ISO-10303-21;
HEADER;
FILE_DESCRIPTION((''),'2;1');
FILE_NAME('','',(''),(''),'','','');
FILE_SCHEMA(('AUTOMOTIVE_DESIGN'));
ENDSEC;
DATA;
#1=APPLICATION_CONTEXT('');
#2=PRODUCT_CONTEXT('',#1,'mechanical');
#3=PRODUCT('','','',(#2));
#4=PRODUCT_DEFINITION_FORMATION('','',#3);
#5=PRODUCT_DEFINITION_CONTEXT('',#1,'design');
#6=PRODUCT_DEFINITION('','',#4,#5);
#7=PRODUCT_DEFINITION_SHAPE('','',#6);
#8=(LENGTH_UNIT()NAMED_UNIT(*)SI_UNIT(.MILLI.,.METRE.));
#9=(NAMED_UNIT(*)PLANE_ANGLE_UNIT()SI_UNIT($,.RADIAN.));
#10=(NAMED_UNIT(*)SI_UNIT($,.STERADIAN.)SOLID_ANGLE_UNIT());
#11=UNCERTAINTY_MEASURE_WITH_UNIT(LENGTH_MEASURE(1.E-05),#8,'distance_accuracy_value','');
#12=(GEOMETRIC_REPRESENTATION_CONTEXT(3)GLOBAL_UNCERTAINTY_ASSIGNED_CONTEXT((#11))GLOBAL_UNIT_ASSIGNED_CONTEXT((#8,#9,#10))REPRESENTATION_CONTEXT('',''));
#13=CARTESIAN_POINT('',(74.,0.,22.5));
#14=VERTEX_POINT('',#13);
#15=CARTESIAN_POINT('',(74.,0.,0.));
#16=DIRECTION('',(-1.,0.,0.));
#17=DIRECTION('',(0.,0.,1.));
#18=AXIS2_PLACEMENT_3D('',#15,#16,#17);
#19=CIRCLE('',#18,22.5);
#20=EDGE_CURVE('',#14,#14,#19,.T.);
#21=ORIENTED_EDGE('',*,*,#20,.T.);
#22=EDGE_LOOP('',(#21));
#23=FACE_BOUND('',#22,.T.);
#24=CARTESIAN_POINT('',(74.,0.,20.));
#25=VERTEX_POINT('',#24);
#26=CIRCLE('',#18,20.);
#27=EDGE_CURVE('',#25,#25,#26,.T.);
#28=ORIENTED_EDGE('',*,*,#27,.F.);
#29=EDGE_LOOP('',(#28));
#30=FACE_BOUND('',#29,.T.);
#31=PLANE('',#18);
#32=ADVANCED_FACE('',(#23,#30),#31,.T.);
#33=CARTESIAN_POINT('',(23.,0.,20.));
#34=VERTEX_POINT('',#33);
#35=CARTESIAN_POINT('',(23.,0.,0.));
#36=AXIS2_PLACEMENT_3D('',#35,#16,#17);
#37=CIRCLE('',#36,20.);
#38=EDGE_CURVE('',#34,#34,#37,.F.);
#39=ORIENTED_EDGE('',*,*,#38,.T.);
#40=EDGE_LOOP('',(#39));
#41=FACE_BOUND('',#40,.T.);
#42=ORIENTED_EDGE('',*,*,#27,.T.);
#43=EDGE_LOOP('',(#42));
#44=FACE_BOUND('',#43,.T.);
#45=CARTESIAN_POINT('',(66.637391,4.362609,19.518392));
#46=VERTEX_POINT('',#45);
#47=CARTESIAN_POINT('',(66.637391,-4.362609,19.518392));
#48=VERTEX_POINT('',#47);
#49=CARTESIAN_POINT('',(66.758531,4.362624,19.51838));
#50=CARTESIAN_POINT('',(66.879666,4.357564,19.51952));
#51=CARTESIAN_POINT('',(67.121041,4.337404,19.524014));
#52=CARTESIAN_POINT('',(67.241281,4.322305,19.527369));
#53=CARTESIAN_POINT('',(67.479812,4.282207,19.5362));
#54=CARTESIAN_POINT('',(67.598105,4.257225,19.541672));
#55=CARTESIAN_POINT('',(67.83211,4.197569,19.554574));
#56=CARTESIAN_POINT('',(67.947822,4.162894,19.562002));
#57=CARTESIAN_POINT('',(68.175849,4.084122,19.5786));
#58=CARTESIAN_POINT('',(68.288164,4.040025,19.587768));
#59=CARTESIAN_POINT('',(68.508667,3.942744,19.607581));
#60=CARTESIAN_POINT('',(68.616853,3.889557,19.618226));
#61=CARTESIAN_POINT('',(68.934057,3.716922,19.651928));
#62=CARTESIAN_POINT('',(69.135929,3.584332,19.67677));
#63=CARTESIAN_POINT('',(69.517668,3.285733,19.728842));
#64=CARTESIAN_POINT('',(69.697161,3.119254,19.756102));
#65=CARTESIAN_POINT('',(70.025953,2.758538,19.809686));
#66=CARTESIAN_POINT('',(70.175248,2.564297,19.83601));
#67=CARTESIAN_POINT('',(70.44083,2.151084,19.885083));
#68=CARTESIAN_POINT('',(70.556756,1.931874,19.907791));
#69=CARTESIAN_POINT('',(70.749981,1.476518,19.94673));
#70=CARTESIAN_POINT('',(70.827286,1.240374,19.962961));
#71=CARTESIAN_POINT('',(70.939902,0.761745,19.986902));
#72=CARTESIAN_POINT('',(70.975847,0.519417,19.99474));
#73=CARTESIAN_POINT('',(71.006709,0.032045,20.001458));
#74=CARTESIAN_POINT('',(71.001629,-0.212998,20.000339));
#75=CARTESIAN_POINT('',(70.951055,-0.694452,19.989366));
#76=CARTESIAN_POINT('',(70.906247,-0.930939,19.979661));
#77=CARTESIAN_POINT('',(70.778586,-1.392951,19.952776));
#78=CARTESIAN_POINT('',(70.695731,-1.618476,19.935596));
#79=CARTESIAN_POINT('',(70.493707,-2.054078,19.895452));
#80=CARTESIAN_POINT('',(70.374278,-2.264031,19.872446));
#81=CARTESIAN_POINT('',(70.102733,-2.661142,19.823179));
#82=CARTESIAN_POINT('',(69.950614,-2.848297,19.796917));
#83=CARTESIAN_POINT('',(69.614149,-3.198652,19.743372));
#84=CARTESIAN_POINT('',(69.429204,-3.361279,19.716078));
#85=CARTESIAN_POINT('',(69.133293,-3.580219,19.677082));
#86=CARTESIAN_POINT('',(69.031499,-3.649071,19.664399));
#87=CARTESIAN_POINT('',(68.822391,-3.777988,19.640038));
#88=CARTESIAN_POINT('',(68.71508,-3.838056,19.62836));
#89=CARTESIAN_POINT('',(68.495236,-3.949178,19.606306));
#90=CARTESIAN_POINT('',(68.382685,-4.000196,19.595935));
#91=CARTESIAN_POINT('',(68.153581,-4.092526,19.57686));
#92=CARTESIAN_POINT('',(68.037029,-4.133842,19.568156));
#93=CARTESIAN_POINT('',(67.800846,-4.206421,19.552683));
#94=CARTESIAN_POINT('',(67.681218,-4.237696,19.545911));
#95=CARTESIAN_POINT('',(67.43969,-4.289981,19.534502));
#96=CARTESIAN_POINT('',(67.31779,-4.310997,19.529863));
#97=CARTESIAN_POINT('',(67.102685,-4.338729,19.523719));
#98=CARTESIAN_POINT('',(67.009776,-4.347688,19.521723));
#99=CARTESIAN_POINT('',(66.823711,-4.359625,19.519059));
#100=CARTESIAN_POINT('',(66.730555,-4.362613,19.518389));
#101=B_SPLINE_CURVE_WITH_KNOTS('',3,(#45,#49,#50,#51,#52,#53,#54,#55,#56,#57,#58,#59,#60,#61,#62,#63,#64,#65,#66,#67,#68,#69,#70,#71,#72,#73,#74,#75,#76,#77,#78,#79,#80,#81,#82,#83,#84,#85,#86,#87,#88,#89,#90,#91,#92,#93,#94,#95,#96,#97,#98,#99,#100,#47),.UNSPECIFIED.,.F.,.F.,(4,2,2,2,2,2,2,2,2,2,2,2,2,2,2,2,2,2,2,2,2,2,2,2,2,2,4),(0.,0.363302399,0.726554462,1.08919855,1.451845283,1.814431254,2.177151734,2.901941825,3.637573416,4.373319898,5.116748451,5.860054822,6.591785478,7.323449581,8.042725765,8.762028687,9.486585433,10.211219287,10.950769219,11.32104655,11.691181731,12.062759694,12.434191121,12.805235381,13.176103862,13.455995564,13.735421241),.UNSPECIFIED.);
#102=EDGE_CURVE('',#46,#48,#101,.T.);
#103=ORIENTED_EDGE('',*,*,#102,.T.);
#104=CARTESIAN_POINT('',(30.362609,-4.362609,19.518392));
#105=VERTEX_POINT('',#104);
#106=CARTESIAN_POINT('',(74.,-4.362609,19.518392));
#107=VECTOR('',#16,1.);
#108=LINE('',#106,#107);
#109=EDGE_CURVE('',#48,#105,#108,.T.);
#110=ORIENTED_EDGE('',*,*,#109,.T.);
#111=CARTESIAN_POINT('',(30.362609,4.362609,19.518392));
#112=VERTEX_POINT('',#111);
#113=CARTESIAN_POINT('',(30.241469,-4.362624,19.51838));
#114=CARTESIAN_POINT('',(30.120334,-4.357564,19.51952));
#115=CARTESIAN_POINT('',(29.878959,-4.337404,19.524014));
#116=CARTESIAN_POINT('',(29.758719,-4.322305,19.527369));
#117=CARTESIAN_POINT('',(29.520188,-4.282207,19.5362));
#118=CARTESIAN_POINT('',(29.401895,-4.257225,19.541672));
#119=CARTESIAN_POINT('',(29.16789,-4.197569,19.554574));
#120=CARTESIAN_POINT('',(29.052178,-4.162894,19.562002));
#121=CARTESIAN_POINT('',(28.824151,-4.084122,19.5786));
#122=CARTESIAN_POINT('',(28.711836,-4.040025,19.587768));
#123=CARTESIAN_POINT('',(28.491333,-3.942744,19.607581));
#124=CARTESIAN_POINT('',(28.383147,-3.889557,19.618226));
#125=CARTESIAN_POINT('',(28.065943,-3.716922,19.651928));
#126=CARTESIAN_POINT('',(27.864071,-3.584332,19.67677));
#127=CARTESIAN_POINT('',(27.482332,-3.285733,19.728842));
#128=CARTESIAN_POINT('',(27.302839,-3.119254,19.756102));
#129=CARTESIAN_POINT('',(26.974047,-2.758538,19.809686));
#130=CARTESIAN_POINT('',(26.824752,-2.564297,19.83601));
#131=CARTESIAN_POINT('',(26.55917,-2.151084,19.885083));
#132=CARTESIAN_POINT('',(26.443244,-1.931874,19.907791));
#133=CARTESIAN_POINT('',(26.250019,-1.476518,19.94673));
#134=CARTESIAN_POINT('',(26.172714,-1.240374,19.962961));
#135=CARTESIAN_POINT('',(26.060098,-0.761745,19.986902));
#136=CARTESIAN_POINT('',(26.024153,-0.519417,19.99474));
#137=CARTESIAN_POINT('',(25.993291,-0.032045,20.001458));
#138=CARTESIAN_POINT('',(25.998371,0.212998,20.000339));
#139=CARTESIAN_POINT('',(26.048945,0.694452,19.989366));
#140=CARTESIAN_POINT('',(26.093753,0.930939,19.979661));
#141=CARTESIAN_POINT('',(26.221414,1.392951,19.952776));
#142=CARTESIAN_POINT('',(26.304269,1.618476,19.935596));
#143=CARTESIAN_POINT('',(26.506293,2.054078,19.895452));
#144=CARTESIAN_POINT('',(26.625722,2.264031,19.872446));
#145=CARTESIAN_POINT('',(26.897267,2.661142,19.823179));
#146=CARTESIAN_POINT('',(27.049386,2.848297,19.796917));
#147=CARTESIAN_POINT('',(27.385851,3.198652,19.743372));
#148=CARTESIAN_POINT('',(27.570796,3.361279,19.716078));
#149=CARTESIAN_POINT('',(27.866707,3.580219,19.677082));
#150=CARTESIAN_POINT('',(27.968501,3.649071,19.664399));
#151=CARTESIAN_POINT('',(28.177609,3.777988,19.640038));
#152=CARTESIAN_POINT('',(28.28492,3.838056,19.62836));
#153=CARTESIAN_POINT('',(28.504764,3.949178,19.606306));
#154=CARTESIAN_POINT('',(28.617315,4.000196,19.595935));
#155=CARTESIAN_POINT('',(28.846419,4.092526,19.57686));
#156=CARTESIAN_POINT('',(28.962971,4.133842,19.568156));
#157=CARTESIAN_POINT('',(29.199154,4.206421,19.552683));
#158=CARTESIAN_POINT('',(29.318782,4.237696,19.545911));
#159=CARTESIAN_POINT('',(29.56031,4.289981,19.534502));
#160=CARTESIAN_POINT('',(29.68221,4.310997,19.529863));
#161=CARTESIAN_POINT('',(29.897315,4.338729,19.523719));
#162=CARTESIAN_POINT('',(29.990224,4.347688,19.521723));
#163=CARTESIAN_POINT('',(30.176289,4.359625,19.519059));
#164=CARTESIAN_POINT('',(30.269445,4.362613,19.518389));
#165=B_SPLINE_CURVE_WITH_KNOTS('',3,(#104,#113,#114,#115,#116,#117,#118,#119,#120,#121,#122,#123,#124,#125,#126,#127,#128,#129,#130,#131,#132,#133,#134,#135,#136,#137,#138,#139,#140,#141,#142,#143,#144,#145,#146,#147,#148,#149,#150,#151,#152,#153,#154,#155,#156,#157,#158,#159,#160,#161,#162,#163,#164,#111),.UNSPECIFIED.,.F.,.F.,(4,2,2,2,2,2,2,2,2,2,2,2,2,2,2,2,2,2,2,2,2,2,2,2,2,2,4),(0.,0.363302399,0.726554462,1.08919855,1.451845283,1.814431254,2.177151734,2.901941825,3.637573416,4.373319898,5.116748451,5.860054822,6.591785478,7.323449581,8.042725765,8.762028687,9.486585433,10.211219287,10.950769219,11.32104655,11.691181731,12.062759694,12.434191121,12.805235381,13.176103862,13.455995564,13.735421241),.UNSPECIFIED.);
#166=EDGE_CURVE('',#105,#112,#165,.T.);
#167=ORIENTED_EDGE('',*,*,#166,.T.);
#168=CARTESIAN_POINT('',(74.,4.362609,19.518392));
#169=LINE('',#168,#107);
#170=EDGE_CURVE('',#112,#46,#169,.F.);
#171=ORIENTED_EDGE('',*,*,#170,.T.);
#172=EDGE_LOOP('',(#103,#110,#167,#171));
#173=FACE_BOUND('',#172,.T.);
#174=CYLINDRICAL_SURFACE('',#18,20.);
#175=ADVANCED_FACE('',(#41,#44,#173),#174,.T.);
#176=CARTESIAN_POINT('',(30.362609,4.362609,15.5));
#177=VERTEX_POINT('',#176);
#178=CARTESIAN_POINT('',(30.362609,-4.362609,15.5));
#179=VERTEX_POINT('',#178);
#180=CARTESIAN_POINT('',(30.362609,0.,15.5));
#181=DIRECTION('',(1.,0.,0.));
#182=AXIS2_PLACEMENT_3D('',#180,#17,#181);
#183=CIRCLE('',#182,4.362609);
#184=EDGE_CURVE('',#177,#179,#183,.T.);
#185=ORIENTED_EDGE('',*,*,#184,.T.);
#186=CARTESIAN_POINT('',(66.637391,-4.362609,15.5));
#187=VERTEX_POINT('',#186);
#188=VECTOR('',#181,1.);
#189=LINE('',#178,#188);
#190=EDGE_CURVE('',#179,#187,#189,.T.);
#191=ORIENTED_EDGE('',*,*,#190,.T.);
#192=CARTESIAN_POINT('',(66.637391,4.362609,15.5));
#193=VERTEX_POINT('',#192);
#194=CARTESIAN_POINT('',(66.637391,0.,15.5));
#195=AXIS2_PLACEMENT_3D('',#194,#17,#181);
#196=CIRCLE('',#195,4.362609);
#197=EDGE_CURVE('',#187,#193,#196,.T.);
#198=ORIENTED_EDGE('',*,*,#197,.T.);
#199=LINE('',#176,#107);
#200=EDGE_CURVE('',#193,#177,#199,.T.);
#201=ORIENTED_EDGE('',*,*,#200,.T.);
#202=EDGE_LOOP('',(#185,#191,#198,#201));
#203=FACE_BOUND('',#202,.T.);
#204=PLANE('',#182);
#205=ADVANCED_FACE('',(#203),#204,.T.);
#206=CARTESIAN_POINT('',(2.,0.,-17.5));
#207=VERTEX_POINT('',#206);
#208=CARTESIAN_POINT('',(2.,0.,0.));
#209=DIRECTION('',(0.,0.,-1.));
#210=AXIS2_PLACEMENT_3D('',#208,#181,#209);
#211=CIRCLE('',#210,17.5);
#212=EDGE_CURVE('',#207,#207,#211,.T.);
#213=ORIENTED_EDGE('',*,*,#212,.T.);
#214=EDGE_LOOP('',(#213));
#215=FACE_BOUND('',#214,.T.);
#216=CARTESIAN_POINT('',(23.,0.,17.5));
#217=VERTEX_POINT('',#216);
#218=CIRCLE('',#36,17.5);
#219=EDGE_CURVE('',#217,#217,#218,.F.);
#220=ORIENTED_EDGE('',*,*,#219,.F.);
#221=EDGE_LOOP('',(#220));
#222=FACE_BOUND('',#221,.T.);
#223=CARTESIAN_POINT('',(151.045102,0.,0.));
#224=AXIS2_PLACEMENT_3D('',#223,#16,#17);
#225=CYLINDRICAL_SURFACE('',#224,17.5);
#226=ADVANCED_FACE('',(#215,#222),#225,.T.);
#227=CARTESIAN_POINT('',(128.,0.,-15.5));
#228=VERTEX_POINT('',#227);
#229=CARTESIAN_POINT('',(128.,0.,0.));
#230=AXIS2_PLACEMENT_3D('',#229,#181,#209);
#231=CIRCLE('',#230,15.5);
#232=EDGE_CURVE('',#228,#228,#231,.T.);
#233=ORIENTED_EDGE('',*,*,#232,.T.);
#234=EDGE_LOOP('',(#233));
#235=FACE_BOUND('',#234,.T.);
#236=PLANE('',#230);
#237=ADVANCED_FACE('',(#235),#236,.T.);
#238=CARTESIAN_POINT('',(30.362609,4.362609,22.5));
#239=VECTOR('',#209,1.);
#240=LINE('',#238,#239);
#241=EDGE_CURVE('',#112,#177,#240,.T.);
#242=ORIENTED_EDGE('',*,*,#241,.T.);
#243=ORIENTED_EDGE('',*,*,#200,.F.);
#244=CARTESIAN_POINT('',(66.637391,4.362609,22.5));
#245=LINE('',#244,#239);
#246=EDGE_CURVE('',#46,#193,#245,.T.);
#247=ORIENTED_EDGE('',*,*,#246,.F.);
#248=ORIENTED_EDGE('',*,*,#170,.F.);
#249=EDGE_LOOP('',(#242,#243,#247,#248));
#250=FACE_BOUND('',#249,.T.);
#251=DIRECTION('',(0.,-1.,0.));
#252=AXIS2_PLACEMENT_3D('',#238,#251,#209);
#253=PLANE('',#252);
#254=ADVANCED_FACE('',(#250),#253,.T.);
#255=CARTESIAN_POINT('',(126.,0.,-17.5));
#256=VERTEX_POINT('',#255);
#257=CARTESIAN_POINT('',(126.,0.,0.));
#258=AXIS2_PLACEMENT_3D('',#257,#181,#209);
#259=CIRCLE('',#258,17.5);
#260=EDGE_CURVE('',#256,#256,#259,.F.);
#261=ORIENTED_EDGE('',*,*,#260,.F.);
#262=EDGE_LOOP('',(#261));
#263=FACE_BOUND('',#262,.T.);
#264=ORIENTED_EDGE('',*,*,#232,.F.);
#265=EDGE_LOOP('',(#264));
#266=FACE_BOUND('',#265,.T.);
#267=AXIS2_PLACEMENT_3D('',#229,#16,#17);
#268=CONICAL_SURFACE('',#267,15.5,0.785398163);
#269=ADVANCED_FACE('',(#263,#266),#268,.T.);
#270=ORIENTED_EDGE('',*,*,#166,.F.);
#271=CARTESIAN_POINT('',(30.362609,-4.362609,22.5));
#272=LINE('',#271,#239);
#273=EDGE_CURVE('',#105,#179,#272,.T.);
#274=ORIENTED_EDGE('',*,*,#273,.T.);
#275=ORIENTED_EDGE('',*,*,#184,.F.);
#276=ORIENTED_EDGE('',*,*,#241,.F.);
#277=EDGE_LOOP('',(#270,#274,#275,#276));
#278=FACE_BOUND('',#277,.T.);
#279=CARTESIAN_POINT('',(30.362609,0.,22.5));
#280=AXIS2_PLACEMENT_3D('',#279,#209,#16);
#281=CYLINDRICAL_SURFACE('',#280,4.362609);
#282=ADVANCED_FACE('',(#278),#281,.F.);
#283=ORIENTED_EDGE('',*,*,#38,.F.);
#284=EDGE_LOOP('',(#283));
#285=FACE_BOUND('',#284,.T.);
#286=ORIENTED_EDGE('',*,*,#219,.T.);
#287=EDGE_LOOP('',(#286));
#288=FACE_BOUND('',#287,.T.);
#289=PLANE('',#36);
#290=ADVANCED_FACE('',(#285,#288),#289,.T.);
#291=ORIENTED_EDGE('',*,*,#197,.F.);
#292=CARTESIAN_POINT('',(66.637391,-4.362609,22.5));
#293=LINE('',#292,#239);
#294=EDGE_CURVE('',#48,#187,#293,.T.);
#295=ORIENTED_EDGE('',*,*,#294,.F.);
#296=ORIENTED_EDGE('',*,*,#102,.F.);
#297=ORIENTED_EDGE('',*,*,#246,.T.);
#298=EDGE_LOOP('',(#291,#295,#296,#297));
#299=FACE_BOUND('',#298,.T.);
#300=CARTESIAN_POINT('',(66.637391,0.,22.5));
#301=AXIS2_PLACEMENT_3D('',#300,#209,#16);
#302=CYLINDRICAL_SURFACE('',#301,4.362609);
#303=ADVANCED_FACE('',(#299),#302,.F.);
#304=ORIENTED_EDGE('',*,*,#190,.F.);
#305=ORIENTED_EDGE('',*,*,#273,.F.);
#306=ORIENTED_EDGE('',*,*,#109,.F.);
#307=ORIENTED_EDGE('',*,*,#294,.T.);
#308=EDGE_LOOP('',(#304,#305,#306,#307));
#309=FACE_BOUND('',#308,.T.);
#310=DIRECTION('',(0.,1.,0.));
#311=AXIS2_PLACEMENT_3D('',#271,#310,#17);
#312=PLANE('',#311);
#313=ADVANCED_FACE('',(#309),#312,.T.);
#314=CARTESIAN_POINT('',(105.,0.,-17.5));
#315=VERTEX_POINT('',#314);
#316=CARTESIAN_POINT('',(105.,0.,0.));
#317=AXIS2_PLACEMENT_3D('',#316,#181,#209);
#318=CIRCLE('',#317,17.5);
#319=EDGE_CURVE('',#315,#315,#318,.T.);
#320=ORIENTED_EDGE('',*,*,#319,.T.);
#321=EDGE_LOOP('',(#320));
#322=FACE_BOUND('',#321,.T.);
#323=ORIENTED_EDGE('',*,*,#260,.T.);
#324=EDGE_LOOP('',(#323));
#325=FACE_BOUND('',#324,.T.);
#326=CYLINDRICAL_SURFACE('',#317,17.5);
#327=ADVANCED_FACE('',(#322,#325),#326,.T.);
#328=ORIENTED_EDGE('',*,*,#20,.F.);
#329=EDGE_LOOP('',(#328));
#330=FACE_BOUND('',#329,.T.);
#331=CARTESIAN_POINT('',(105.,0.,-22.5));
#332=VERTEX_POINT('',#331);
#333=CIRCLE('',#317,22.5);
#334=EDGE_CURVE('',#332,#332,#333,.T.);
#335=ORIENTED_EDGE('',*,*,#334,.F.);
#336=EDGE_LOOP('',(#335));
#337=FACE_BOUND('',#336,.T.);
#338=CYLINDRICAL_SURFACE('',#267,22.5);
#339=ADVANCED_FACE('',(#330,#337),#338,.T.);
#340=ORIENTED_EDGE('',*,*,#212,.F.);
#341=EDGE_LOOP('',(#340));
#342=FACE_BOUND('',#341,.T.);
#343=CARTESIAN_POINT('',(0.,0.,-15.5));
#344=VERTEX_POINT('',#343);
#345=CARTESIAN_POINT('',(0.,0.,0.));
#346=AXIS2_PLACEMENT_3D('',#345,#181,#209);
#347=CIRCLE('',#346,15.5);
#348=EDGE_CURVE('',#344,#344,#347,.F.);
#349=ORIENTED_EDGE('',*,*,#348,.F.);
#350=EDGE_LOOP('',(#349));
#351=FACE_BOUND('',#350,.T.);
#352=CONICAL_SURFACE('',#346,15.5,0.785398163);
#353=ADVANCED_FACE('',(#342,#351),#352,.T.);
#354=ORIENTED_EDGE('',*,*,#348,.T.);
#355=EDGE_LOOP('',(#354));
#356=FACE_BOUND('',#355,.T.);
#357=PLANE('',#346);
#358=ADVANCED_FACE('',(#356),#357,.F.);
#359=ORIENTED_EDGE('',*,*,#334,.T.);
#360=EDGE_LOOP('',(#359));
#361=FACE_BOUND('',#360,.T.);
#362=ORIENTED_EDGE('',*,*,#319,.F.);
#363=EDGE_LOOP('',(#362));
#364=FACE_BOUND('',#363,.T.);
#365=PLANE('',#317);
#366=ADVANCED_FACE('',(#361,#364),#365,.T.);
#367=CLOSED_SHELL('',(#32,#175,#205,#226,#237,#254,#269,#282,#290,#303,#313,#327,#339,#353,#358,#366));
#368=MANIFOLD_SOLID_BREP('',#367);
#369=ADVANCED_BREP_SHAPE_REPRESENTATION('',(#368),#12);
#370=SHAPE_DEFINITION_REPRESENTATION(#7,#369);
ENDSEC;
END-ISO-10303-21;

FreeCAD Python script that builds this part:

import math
import FreeCAD as App
import Part
import Sketcher
from FreeCAD import Vector


def edges_at(feature, points):
    """Names of the edges that pass closest to the given points."""
    edges = feature.Shape.Edges
    near = lambda p: min(range(len(edges)), key=lambda i: edges[i].distToShape(Part.Vertex(*p))[0])
    return sorted({f"Edge{near(p) + 1}" for p in points})


def add_polygon(sketch, points):
    """Adds a closed chain of lines whose ends are joined by coincident constraints."""
    first, n = sketch.GeometryCount, len(points)
    for a, b in zip(points, points[1:] + points[:1]):
        sketch.addGeometry(Part.LineSegment(App.Vector(*a, 0), App.Vector(*b, 0)), False)
    for i in range(n):
        sketch.addConstraint(Sketcher.Constraint("Coincident", first + i, 2, first + (i + 1) % n, 1))

doc = App.newDocument("Part")
body = doc.addObject("PartDesign::Body", "Body")

# Sketch on YZ plane
sketch1 = body.newObject("Sketcher::SketchObject", "Sketch")
sketch1.AttachmentSupport = (doc.getObject("YZ_Plane"), [""])
sketch1.MapMode = "FlatFace"
sketch1.addGeometry(Part.Circle(Vector(0, 0, 0), Vector(0, 0, 1), 22), False)
sketch1.addConstraint([
    Sketcher.Constraint("Coincident", 0, 3, -1, 1),
    Sketcher.Constraint("Diameter", 0, 45.0),
])
pad1 = body.newObject("PartDesign::Pad", "Pad")
pad1.Profile = sketch1
pad1.Length = 128

# Sketch on YZ plane
sketch2 = body.newObject("Sketcher::SketchObject", "Sketch001")
sketch2.AttachmentSupport = (doc.getObject("YZ_Plane"), [""])
sketch2.MapMode = "FlatFace"
sketch2.AttachmentOffset = App.Placement(Vector(0, 0, 128), App.Rotation())
add_polygon(sketch2, [(38, 38), (-38, 38), (-38, -38), (38, -38)])  # lines 0-3
sketch2.addGeometry(Part.Circle(Vector(0, 0, 0), Vector(0, 0, 1), 18), False)  # 4
sketch2.addConstraint([
    Sketcher.Constraint("Horizontal", 0),
    Sketcher.Constraint("Vertical", 1),
    Sketcher.Constraint("Horizontal", 2),
    Sketcher.Constraint("Vertical", 3),
    Sketcher.Constraint("Coincident", 4, 3, -1, 1),
    Sketcher.Constraint("Symmetric", 0, 2, 2, 2, -1, 1),
    Sketcher.Constraint("Equal", 2, 1),
    Sketcher.Constraint("Diameter", 4, 35.0),
    Sketcher.Constraint("DistanceX", 0, 2, 0, 1, 75.59),
])
pocket1 = body.newObject("PartDesign::Pocket", "Pocket")
pocket1.Profile = sketch2
pocket1.Length = 23

# Sketch on YZ plane
sketch3 = body.newObject("Sketcher::SketchObject", "Sketch002")
sketch3.AttachmentSupport = (doc.getObject("YZ_Plane"), [""])
sketch3.MapMode = "FlatFace"
add_polygon(sketch3, [(38, -38), (-38, -38), (-38, 38), (38, 38)])  # lines 0-3
sketch3.addGeometry(Part.Circle(Vector(0, 0, 0), Vector(0, 0, 1), 20), False)  # 4
sketch3.addConstraint([
    Sketcher.Constraint("Horizontal", 0),
    Sketcher.Constraint("Vertical", 1),
    Sketcher.Constraint("Horizontal", 2),
    Sketcher.Constraint("Vertical", 3),
    Sketcher.Constraint("Coincident", 4, 3, -1, 1),
    Sketcher.Constraint("Symmetric", 0, 2, 2, 2, -1, 1),
    Sketcher.Constraint("Equal", 2, 1),
    Sketcher.Constraint("Diameter", 4, 40.0),
    Sketcher.Constraint("DistanceX", 0, 2, 0, 1, 75.59),
])
pocket2 = body.newObject("PartDesign::Pocket", "Pocket001")
pocket2.Profile = sketch3
pocket2.Length = 74
pocket2.Reversed = True

# Sketch on YZ plane
sketch4 = body.newObject("Sketcher::SketchObject", "Sketch003")
sketch4.AttachmentSupport = (doc.getObject("YZ_Plane"), [""])
sketch4.MapMode = "FlatFace"
add_polygon(sketch4, [(38, -38), (-38, -38), (-38, 38), (38, 38)])  # lines 0-3
sketch4.addGeometry(Part.Circle(Vector(0, 0, 0), Vector(0, 0, 1), 18), False)  # 4
sketch4.addConstraint([
    Sketcher.Constraint("Horizontal", 0),
    Sketcher.Constraint("Vertical", 1),
    Sketcher.Constraint("Horizontal", 2),
    Sketcher.Constraint("Vertical", 3),
    Sketcher.Constraint("Coincident", 4, 3, -1, 1),
    Sketcher.Constraint("Symmetric", 0, 2, 2, 2, -1, 1),
    Sketcher.Constraint("Equal", 2, 1),
    Sketcher.Constraint("Diameter", 4, 35.0),
    Sketcher.Constraint("DistanceX", 0, 2, 0, 1, 75.59),
])
pocket3 = body.newObject("PartDesign::Pocket", "Pocket002")
pocket3.Profile = sketch4
pocket3.Length = 23
pocket3.Reversed = True

# Sketch on XY plane
sketch5 = body.newObject("Sketcher::SketchObject", "Sketch004")
sketch5.AttachmentSupport = (doc.getObject("XY_Plane"), [""])
sketch5.MapMode = "FlatFace"
sketch5.AttachmentOffset = App.Placement(Vector(0, 0, 15.5), App.Rotation())
sketch5.addGeometry([
    Part.LineSegment(Vector(66.6, 4.4, 0), Vector(30.4, 4.4, 0)),
    Part.ArcOfCircle(Part.Circle(Vector(30.4, 0, 0), Vector(0, 0, 1), 4.4), math.radians(90), math.radians(270)),
    Part.LineSegment(Vector(30.4, -4.4, 0), Vector(66.6, -4.4, 0)),
    Part.ArcOfCircle(Part.Circle(Vector(66.6, 0, 0), Vector(0, 0, 1), 4.4), math.radians(-90), math.radians(90)),
], False)
sketch5.addConstraint([
    Sketcher.Constraint("Tangent", 0, 2, 1, 1),
    Sketcher.Constraint("Tangent", 1, 2, 2, 1),
    Sketcher.Constraint("Tangent", 2, 2, 3, 1),
    Sketcher.Constraint("Tangent", 3, 2, 0, 1),
    Sketcher.Constraint("Horizontal", 0),
    Sketcher.Constraint("Horizontal", 2),
    Sketcher.Constraint("PointOnObject", 1, 3, -1),
    Sketcher.Constraint("Radius", 1, 4.362609),
    Sketcher.Constraint("DistanceX", 0, 2, 0, 1, 36.274781),
    Sketcher.Constraint("DistanceX", -1, 1, 1, 3, 30.362609),
])
pocket4 = body.newObject("PartDesign::Pocket", "Pocket003")
pocket4.Profile = sketch5
pocket4.Type = "ThroughAll"
pocket4.Reversed = True
doc.recompute()

chamfer = body.newObject("PartDesign::Chamfer", "Chamfer")
chamfer.Base = (pocket4, edges_at(pocket4, [(128, 0, 17.5), (0, 0, 17.5)]))
chamfer.Size = 2

doc.recompute()
